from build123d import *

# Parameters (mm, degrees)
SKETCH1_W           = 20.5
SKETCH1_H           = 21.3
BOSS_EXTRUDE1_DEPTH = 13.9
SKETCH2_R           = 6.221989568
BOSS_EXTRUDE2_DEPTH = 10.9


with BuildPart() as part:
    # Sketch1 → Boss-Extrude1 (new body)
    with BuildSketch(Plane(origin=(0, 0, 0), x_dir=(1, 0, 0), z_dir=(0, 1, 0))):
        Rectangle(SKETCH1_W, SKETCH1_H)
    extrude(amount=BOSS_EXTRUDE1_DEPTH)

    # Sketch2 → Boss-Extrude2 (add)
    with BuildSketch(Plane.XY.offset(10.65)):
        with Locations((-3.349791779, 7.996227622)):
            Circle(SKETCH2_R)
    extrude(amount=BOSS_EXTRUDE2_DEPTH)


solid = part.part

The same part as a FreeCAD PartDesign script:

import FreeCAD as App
import Part
import Sketcher

V = App.Vector

doc = App.newDocument("Part")
params = doc.addObject("Spreadsheet::Sheet", "Params")
for row, (alias, value) in enumerate([
    ("sketch1_width", "20.5 mm"),
    ("sketch1_height", "21.3 mm"),
    ("pad1_length", "13.9 mm"),
    ("pad2_length", "10.9 mm"),
], start=1):
    params.set(f"A{row}", alias)
    params.set(f"B{row}", "=" + value)
    params.setAlias(f"B{row}", alias)

body = doc.addObject("PartDesign::Body", "Body")

sketch1 = body.newObject("Sketcher::SketchObject", "Sketch")
sketch1.AttachmentSupport = (doc.getObject("XZ_Plane"), [""])
sketch1.MapMode = "FlatFace"
sketch1.addGeometry([
    Part.LineSegment(V(-10.25, -10.65, 0), V(-10.25, 10.65, 0)),
    Part.LineSegment(V(-10.25, 10.65, 0), V(10.25, 10.65, 0)),
    Part.LineSegment(V(10.25, 10.65, 0), V(10.25, -10.65, 0)),
    Part.LineSegment(V(10.25, -10.65, 0), V(-10.25, -10.65, 0)),
], False)
sketch1.addConstraint([
    Sketcher.Constraint("Coincident", 0, 2, 1, 1),
    Sketcher.Constraint("Coincident", 1, 2, 2, 1),
    Sketcher.Constraint("Coincident", 2, 2, 3, 1),
    Sketcher.Constraint("Coincident", 3, 2, 0, 1),
    Sketcher.Constraint("Vertical", 0),
    Sketcher.Constraint("Horizontal", 1),
    Sketcher.Constraint("Vertical", 2),
    Sketcher.Constraint("Horizontal", 3),
    Sketcher.Constraint("Symmetric", 0, 2, 2, 2, -1, 1),
    Sketcher.Constraint("DistanceX", 1, 1, 1, 2, 20.5),
    Sketcher.Constraint("DistanceY", 0, 1, 0, 2, 21.3),
])
sketch1.setExpression("Constraints[9]", "Params.sketch1_width")
sketch1.setExpression("Constraints[10]", "Params.sketch1_height")
pad1 = body.newObject("PartDesign::Pad", "Pad")
pad1.Profile = sketch1
pad1.setExpression("Length", "Params.pad1_length")
pad1.Reversed = True

sketch2 = body.newObject("Sketcher::SketchObject", "Sketch001")
sketch2.AttachmentSupport = (doc.getObject("XY_Plane"), [""])
sketch2.MapMode = "FlatFace"
sketch2.AttachmentOffset = App.Placement(V(0, 0, 10.65), App.Rotation())
sketch2.addGeometry(Part.Circle(V(-3.349792, 7.996228, 0), V(0, 0, 1), 6.22199), False)
sketch2.addConstraint([
    Sketcher.Constraint("Diameter", 0, 12.443979),
    Sketcher.Constraint("DistanceX", 0, 3, -1, 1, 3.349792),
    Sketcher.Constraint("DistanceY", -1, 1, 0, 3, 7.996228),
])
pad2 = body.newObject("PartDesign::Pad", "Pad001")
pad2.Profile = sketch2
pad2.setExpression("Length", "Params.pad2_length")

doc.recompute()
